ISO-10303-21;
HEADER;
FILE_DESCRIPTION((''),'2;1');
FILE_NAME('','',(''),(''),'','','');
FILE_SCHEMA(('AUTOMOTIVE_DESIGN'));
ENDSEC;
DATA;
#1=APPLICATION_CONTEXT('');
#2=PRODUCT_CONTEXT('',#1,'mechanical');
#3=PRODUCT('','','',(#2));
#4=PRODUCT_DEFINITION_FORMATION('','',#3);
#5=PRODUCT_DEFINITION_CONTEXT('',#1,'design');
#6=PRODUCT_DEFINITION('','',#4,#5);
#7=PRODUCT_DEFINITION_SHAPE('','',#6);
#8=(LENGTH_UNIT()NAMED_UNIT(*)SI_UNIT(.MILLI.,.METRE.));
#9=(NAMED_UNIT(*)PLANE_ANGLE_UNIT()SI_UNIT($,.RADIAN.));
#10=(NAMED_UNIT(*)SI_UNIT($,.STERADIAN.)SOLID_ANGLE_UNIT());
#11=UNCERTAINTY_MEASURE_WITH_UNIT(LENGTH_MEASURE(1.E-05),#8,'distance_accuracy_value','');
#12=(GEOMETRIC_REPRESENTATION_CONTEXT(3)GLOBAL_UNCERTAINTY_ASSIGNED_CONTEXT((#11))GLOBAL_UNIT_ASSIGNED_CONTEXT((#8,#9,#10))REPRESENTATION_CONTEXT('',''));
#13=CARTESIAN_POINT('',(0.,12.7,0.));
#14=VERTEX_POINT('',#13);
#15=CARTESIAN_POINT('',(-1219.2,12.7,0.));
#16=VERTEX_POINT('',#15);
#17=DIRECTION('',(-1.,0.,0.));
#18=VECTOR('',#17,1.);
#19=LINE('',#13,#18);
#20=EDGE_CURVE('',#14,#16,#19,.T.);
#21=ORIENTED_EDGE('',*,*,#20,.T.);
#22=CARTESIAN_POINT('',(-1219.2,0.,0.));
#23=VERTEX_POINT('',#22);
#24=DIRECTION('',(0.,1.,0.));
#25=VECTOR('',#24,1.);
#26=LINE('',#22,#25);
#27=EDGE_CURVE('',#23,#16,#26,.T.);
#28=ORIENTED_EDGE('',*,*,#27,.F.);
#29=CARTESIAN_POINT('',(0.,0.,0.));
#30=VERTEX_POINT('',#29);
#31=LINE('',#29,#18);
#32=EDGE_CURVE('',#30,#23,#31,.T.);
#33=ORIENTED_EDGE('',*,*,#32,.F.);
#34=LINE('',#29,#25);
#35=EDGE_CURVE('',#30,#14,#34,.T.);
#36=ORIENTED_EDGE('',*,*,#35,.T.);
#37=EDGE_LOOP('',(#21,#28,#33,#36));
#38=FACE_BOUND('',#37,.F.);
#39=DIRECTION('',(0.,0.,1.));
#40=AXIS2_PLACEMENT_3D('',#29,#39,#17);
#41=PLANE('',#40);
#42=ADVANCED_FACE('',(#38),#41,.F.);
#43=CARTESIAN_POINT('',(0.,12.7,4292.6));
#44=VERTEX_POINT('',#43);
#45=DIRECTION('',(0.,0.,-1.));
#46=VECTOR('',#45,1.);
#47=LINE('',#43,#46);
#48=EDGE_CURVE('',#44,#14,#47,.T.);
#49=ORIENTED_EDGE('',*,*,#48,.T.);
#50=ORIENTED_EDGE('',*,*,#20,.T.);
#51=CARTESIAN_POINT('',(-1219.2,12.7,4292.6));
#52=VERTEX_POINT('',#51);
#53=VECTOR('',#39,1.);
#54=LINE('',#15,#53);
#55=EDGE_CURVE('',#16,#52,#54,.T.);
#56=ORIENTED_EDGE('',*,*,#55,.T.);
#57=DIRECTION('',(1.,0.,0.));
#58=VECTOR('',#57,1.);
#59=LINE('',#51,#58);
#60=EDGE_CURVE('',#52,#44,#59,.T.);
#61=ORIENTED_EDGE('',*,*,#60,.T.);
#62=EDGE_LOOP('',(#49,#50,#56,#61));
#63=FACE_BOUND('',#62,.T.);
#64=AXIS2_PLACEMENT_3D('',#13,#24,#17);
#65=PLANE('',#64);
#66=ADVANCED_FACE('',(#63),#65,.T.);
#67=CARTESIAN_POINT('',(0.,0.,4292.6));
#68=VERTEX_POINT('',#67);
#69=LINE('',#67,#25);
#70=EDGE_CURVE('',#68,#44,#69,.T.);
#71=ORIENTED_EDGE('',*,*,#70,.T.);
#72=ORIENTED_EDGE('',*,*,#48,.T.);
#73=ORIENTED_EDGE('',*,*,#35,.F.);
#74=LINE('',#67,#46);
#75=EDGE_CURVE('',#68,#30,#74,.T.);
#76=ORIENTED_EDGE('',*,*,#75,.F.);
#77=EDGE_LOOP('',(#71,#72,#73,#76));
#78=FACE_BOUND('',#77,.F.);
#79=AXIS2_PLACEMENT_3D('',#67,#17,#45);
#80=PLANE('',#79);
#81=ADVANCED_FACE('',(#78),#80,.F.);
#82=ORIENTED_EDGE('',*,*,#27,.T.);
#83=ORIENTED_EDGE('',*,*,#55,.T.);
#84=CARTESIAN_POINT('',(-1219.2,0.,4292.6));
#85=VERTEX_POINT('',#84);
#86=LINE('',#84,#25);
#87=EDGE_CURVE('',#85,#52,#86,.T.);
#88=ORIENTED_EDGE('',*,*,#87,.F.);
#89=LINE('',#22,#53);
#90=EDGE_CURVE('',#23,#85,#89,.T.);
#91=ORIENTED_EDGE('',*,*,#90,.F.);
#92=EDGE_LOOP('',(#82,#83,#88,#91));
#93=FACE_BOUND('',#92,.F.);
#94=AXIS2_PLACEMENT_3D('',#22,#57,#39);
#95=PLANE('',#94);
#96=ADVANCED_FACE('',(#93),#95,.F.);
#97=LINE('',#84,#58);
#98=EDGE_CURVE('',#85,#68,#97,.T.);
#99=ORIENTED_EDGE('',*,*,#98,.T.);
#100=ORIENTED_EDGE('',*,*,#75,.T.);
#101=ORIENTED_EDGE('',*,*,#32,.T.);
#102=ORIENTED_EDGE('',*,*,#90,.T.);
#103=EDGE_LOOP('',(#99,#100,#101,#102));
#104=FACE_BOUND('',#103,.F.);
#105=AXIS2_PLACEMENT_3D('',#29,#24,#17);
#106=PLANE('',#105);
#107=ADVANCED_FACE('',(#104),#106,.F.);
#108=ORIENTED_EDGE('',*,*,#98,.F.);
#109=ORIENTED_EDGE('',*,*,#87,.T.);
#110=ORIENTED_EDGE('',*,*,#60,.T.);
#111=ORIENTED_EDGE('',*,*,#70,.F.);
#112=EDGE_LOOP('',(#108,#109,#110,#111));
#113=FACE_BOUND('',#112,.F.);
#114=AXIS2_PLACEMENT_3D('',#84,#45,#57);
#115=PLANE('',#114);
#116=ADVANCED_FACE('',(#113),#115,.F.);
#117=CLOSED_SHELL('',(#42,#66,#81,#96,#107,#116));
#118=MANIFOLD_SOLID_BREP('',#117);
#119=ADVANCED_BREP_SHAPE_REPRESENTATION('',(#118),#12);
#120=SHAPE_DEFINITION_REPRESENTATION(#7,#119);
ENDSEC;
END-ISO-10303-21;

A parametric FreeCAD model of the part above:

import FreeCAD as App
import Part
import Sketcher
from FreeCAD import Vector
Q = App.Units.Quantity

doc = App.newDocument("Part")
body = doc.addObject("PartDesign::Body", "Body")

sketch1 = body.newObject("Sketcher::SketchObject", "Sketch")
sketch1.AttachmentSupport = (doc.getObject("XZ_Plane"), [""])
sketch1.MapMode = "FlatFace"
sketch1.addGeometry([
    Part.LineSegment(Vector(0, 4293, 0), Vector(0, 0, 0)),
    Part.LineSegment(Vector(0, 0, 0), Vector(-1219, 0, 0)),
    Part.LineSegment(Vector(-1219, 0, 0), Vector(-1219, 4293, 0)),
    Part.LineSegment(Vector(-1219, 4293, 0), Vector(0, 4293, 0)),
], False)
sketch1.addConstraint([
    Sketcher.Constraint("Coincident", 0, 2, 1, 1),
    Sketcher.Constraint("Coincident", 1, 2, 2, 1),
    Sketcher.Constraint("Coincident", 2, 2, 3, 1),
    Sketcher.Constraint("Coincident", 3, 2, 0, 1),
    Sketcher.Constraint("Vertical", 0),
    Sketcher.Constraint("Horizontal", 1),
    Sketcher.Constraint("Vertical", 2),
    Sketcher.Constraint("Horizontal", 3),
    Sketcher.Constraint("Coincident", 0, 2, -1, 1),
    Sketcher.Constraint("DistanceX", 1, 2, 1, 1, Q("48 in")),
    Sketcher.Constraint("DistanceY", 0, 2, 0, 1, Q("169 in")),
])
pad1 = body.newObject("PartDesign::Pad", "Pad")
pad1.Profile = sketch1
pad1.Length = Q("0.5 in")
pad1.Reversed = True

doc.recompute()
